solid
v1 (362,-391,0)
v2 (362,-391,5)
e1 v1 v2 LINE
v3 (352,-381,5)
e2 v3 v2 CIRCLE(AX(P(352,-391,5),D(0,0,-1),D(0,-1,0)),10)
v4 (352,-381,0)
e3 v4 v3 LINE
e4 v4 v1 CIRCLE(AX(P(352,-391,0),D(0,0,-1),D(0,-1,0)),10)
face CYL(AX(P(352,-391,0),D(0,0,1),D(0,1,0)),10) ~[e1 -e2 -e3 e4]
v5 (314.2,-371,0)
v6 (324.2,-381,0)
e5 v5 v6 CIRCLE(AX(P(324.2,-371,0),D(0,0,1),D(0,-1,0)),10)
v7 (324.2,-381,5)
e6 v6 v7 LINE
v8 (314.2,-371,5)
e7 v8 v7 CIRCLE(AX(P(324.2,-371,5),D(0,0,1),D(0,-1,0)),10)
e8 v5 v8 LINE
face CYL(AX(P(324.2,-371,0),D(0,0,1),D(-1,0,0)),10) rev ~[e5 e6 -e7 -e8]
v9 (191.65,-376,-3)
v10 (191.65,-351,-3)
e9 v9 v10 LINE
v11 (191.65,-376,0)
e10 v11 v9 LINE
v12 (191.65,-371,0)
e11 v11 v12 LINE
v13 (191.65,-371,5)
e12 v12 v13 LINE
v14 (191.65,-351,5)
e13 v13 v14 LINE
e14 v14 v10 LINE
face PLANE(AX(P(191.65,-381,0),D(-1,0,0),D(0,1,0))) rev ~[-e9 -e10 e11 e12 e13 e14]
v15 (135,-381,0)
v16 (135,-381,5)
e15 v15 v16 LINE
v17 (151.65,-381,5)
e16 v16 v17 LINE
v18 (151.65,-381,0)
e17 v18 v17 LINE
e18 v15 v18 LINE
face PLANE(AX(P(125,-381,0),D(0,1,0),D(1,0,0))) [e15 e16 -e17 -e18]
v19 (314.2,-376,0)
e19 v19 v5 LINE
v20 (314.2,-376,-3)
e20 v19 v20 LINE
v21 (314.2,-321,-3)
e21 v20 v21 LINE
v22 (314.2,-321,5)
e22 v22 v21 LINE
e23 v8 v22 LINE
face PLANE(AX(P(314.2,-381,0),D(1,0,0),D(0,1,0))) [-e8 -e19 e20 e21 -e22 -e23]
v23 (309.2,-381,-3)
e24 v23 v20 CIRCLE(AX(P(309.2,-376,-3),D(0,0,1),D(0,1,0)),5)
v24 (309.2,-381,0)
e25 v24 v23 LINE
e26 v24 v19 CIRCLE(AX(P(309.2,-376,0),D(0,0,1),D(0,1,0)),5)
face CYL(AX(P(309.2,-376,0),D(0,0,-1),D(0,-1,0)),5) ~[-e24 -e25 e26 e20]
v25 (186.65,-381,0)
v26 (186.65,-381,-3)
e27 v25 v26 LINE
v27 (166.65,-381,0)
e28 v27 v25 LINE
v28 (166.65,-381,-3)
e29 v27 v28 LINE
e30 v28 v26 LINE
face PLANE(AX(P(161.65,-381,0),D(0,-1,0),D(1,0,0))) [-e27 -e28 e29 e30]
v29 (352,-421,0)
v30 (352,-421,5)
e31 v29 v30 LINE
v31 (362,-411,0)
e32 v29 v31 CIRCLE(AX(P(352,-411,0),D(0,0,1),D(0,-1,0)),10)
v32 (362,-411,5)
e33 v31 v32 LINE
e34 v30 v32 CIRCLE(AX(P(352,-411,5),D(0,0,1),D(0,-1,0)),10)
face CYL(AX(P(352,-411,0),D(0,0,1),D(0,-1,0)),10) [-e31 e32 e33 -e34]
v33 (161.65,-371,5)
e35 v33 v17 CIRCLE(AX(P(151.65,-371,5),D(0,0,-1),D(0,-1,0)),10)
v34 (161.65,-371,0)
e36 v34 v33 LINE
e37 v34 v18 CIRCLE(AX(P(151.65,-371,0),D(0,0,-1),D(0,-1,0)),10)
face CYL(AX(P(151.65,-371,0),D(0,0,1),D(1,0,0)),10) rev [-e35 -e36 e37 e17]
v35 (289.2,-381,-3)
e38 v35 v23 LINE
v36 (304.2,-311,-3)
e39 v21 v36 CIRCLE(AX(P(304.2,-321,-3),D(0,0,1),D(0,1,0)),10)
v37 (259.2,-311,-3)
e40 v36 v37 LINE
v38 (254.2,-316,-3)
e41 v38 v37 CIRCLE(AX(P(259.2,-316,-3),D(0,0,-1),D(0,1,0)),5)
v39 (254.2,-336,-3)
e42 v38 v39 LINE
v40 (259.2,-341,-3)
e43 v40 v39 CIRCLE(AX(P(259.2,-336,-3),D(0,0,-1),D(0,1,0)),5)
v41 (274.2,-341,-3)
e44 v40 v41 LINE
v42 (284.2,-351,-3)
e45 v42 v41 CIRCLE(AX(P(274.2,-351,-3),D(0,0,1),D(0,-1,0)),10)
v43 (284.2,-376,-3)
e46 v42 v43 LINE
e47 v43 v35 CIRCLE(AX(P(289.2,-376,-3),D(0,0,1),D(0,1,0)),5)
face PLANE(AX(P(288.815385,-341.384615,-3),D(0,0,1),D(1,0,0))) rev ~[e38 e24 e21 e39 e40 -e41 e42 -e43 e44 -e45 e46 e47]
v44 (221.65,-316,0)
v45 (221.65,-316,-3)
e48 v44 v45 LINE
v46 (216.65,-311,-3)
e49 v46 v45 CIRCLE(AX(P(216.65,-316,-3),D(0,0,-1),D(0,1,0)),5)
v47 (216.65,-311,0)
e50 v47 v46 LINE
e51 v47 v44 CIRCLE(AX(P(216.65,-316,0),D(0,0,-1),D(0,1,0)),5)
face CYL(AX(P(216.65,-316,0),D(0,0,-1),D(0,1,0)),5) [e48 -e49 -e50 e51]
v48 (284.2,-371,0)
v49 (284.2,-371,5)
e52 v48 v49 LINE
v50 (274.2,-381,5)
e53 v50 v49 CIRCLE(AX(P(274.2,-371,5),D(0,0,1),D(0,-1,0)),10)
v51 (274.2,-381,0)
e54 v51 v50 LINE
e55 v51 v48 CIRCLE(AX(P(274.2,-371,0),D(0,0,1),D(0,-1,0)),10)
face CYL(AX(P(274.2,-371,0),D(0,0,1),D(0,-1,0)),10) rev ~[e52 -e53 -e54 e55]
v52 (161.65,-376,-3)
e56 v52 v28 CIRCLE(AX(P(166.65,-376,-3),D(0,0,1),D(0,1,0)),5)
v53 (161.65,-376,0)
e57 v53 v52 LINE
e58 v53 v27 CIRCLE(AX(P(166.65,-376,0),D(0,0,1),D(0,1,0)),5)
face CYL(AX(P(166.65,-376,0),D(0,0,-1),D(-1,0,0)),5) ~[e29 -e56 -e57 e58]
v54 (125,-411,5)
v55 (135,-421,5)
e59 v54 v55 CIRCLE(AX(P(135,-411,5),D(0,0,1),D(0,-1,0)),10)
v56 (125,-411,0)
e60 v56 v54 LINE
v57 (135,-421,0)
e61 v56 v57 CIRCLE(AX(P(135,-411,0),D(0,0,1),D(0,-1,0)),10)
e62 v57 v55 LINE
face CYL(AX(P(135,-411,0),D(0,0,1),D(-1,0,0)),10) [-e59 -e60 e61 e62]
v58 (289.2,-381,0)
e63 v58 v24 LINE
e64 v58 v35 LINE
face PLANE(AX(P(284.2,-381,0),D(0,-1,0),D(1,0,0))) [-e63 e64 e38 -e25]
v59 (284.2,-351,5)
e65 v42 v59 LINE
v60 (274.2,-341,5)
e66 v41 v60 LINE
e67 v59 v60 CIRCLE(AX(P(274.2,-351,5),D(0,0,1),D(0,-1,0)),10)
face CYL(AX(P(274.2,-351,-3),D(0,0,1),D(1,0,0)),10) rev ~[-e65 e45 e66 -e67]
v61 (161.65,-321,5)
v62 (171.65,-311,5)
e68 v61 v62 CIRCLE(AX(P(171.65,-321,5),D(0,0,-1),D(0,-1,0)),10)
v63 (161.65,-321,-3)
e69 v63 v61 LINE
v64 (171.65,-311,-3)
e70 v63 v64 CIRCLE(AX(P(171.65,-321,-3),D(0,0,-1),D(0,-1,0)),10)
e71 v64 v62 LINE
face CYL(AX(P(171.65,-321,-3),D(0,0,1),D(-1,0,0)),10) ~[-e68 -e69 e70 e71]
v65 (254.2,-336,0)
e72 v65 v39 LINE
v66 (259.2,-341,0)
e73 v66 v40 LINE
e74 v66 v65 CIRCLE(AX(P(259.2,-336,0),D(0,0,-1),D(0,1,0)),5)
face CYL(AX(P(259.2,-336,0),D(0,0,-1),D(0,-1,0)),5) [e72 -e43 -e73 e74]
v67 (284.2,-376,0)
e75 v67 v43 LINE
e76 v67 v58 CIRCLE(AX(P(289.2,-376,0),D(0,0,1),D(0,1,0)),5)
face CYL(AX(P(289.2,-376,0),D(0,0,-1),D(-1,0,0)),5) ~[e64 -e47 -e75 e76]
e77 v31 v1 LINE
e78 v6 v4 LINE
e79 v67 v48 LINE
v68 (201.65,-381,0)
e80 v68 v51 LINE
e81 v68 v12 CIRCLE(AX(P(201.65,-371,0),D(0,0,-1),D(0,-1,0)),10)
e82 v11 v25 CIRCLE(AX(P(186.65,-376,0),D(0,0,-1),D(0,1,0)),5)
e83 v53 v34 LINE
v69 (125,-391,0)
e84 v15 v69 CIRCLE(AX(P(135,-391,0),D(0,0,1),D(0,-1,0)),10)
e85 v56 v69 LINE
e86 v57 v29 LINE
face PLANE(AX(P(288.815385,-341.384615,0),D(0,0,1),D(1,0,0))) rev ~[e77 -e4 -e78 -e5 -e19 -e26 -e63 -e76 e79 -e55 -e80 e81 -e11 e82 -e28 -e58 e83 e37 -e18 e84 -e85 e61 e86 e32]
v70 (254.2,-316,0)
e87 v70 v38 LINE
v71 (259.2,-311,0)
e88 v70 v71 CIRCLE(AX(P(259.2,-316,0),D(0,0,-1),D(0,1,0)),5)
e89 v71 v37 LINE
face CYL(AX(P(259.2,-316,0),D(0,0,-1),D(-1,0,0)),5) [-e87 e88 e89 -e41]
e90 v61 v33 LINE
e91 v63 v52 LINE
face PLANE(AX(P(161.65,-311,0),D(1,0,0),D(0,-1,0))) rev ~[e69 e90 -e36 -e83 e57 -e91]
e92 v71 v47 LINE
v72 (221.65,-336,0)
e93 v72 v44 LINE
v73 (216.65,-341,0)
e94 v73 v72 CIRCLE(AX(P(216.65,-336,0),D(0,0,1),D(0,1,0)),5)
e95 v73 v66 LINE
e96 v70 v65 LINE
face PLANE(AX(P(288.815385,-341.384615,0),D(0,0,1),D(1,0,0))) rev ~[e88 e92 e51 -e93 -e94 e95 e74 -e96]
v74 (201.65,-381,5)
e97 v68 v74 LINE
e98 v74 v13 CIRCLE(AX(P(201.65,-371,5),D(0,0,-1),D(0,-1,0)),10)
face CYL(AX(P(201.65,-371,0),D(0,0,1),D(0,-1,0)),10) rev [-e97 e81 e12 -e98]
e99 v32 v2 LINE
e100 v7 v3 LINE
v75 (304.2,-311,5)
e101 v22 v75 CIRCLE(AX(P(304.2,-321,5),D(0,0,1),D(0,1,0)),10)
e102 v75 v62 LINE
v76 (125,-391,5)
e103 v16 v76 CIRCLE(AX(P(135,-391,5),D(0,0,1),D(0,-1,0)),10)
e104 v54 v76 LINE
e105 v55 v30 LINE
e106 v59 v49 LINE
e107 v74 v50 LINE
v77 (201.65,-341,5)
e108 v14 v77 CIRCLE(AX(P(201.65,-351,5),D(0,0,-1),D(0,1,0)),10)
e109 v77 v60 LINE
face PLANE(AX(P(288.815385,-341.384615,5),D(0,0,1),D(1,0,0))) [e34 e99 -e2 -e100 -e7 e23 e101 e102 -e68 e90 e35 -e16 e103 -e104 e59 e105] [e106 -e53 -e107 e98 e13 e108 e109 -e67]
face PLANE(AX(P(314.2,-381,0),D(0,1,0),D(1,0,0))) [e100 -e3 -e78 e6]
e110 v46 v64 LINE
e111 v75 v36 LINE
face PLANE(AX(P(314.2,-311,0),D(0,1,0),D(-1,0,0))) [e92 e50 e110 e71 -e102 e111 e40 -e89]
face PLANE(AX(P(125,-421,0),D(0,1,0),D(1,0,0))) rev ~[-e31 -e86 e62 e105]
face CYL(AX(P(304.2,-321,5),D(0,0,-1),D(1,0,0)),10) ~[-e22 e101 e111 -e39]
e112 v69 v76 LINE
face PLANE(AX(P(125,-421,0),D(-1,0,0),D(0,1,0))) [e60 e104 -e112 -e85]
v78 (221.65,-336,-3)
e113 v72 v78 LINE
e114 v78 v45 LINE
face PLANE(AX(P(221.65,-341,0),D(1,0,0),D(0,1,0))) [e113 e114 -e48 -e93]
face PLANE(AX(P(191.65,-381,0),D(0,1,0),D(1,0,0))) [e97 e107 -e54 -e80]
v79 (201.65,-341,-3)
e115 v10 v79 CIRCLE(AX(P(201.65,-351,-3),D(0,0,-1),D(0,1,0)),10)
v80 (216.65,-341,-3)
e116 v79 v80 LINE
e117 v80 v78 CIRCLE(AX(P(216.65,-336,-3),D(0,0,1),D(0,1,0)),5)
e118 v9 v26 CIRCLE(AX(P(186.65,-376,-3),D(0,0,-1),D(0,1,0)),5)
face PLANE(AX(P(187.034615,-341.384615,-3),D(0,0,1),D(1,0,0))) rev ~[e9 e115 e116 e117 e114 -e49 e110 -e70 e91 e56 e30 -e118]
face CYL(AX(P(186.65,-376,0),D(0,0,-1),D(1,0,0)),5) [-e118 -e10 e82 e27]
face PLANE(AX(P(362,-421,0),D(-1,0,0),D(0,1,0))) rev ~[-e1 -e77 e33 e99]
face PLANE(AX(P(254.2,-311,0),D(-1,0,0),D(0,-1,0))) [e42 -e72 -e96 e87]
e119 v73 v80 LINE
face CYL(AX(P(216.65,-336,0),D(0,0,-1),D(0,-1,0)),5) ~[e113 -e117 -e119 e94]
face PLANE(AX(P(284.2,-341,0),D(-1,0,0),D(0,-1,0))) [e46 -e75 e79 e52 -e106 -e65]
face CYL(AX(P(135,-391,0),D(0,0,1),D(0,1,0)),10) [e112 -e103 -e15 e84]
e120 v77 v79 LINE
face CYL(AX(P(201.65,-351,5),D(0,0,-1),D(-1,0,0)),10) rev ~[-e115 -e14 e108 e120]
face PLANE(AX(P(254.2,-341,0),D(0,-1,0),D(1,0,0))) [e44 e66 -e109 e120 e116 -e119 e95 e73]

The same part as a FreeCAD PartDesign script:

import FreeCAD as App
import Part
import Sketcher
from FreeCAD import Vector


def edges_at(feature, points):
    """Names of the edges that pass closest to the given points."""
    edges = feature.Shape.Edges
    near = lambda p: min(range(len(edges)), key=lambda i: edges[i].distToShape(Part.Vertex(*p))[0])
    return sorted({f"Edge{near(p) + 1}" for p in points})


def add_polygon(sketch, points):
    """Adds a closed chain of lines whose ends are joined by coincident constraints."""
    first, n = sketch.GeometryCount, len(points)
    for a, b in zip(points, points[1:] + points[:1]):
        sketch.addGeometry(Part.LineSegment(App.Vector(*a, 0), App.Vector(*b, 0)), False)
    for i in range(n):
        sketch.addConstraint(Sketcher.Constraint("Coincident", first + i, 2, first + (i + 1) % n, 1))

doc = App.newDocument("Part")
params = doc.addObject("Spreadsheet::Sheet", "Params")
for row, (alias, value) in enumerate([
    ("sketch1_width", "237 mm"),
    ("sketch1_height", "70 mm"),
    ("sketch1_height2", "40 mm"),
    ("sketch1_width2", "47.8 mm"),
    ("sketch1_width3", "36.65 mm"),
    ("pad1_length", "5 mm"),
    ("sketch2_width", "30 mm"),
    ("sketch2_height", "40 mm"),
    ("pad2_length", "3 mm"),
    ("fillet_radius", "10 mm"),
    ("fillet2_radius", "5 mm"),
], start=1):
    params.set(f"A{row}", alias)
    params.set(f"B{row}", "=" + value)
    params.setAlias(f"B{row}", alias)

body = doc.addObject("PartDesign::Body", "Body")

sketch1 = body.newObject("Sketcher::SketchObject", "Sketch")
sketch1.AttachmentSupport = (doc.getObject("XY_Plane"), [""])
sketch1.MapMode = "FlatFace"
add_polygon(sketch1, [(162, -311), (162, -381), (125, -381), (125, -421), (362, -421), (362, -381), (314, -381), (314, -311)])
add_polygon(sketch1, [(284, -341), (284, -381), (192, -381), (192, -341)])
sketch1.addConstraint(Sketcher.Constraint("Vertical", 0))
sketch1.addConstraint(Sketcher.Constraint("Horizontal", 1))
sketch1.addConstraint(Sketcher.Constraint("Vertical", 2))
sketch1.addConstraint(Sketcher.Constraint("Horizontal", 3))
sketch1.addConstraint(Sketcher.Constraint("Vertical", 4))
sketch1.addConstraint(Sketcher.Constraint("Horizontal", 5))
sketch1.addConstraint(Sketcher.Constraint("Vertical", 6))
sketch1.addConstraint(Sketcher.Constraint("Horizontal", 7))
sketch1.addConstraint(Sketcher.Constraint("Vertical", 8))
sketch1.addConstraint(Sketcher.Constraint("Horizontal", 9))
sketch1.addConstraint(Sketcher.Constraint("Vertical", 10))
sketch1.addConstraint(Sketcher.Constraint("Horizontal", 11))
sketch1.addConstraint(Sketcher.Constraint("Horizontal", 1, 2, 4, 2))
sketch1.addConstraint(Sketcher.Constraint("Horizontal", 5, 2, 8, 2))
sketch1.addConstraint(Sketcher.Constraint("Equal", 4, 8))
sketch1.addConstraint(Sketcher.Constraint("DistanceX", 3, 1, 3, 2, 237.0))
sketch1.addConstraint(Sketcher.Constraint("DistanceY", 0, 2, 0, 1, 70.0))
sketch1.addConstraint(Sketcher.Constraint("DistanceY", 2, 2, 2, 1, 40.0))
sketch1.addConstraint(Sketcher.Constraint("DistanceX", 5, 2, 5, 1, 47.8))
sketch1.addConstraint(Sketcher.Constraint("DistanceY", 0, 2, -1, 1, 381.0))
sketch1.addConstraint(Sketcher.Constraint("DistanceX", -1, 1, 1, 2, 125.0))
sketch1.addConstraint(Sketcher.Constraint("DistanceX", 8, 2, 5, 2, 30.0))
sketch1.addConstraint(Sketcher.Constraint("DistanceX", 0, 2, 9, 2, 30.0))
sketch1.addConstraint(Sketcher.Constraint("DistanceX", 1, 2, 1, 1, 36.65))
sketch1.setExpression("Constraints[27]", "Params.sketch1_width")
sketch1.setExpression("Constraints[28]", "Params.sketch1_height")
sketch1.setExpression("Constraints[29]", "Params.sketch1_height2")
sketch1.setExpression("Constraints[30]", "Params.sketch1_width2")
sketch1.setExpression("Constraints[35]", "Params.sketch1_width3")
pad1 = body.newObject("PartDesign::Pad", "Pad")
pad1.Profile = sketch1
pad1.setExpression("Length", "Params.pad1_length")

sketch2 = body.newObject("Sketcher::SketchObject", "Sketch001")
sketch2.AttachmentSupport = (doc.getObject("XY_Plane"), [""])
sketch2.MapMode = "FlatFace"
add_polygon(sketch2, [(254, -311), (254, -341), (284, -341), (284, -381), (314, -381), (314, -311)])
add_polygon(sketch2, [(192, -341), (222, -341), (222, -311), (162, -311), (162, -381), (192, -381)])
sketch2.addConstraint(Sketcher.Constraint("Vertical", 0))
sketch2.addConstraint(Sketcher.Constraint("Horizontal", 1))
sketch2.addConstraint(Sketcher.Constraint("Vertical", 2))
sketch2.addConstraint(Sketcher.Constraint("Horizontal", 3))
sketch2.addConstraint(Sketcher.Constraint("Vertical", 4))
sketch2.addConstraint(Sketcher.Constraint("Horizontal", 5))
sketch2.addConstraint(Sketcher.Constraint("Horizontal", 6))
sketch2.addConstraint(Sketcher.Constraint("Vertical", 7))
sketch2.addConstraint(Sketcher.Constraint("Horizontal", 8))
sketch2.addConstraint(Sketcher.Constraint("Vertical", 9))
sketch2.addConstraint(Sketcher.Constraint("Horizontal", 10))
sketch2.addConstraint(Sketcher.Constraint("Vertical", 11))
sketch2.addConstraint(Sketcher.Constraint("Horizontal", 1, 2, 6, 2))
sketch2.addConstraint(Sketcher.Constraint("Horizontal", 5, 2, 7, 2))
sketch2.addConstraint(Sketcher.Constraint("Horizontal", 3, 2, 9, 2))
sketch2.addConstraint(Sketcher.Constraint("Equal", 1, 3))
sketch2.addConstraint(Sketcher.Constraint("Equal", 3, 6))
sketch2.addConstraint(Sketcher.Constraint("Equal", 5, 8))
sketch2.addConstraint(Sketcher.Constraint("Equal", 10, 0))
sketch2.addConstraint(Sketcher.Constraint("DistanceX", 1, 1, 1, 2, 30.0))
sketch2.addConstraint(Sketcher.Constraint("DistanceY", 2, 2, 2, 1, 40.0))
sketch2.addConstraint(Sketcher.Constraint("DistanceY", 0, 2, -1, 1, 341.0))
sketch2.addConstraint(Sketcher.Constraint("DistanceX", -1, 1, 0, 2, 254.2))
sketch2.addConstraint(Sketcher.Constraint("DistanceX", -1, 1, 6, 2, 221.65))
sketch2.setExpression("Constraints[31]", "Params.sketch2_width")
sketch2.setExpression("Constraints[32]", "Params.sketch2_height")
pad2 = body.newObject("PartDesign::Pad", "Pad001")
pad2.Profile = sketch2
pad2.setExpression("Length", "Params.pad2_length")
pad2.Reversed = True
doc.recompute()

fillet = body.newObject("PartDesign::Fillet", "Fillet")
fillet.Base = (pad2, edges_at(pad2, [
    (314.2, -381, 2.5),
    (362, -381, 2.5),
    (362, -421, 2.5),
    (125, -421, 2.5),
    (125, -381, 2.5),
    (161.65, -381, 2.5),
    (161.65, -311, 1),
    (314.2, -311, 1),
    (191.65, -381, 2.5),
    (284.2, -381, 2.5),
    (284.2, -341, 1),
    (191.65, -341, 1),
]))
fillet.setExpression("Radius", "Params.fillet_radius")
doc.recompute()

fillet2 = body.newObject("PartDesign::Fillet", "Fillet001")
fillet2.Base = (fillet, edges_at(fillet, [
    (314.2, -381, -1.5),
    (284.2, -381, -1.5),
    (254.2, -341, -1.5),
    (254.2, -311, -1.5),
    (221.65, -341, -1.5),
    (221.65, -311, -1.5),
    (161.65, -381, -1.5),
    (191.65, -381, -1.5),
]))
fillet2.setExpression("Radius", "Params.fillet2_radius")

doc.recompute()
